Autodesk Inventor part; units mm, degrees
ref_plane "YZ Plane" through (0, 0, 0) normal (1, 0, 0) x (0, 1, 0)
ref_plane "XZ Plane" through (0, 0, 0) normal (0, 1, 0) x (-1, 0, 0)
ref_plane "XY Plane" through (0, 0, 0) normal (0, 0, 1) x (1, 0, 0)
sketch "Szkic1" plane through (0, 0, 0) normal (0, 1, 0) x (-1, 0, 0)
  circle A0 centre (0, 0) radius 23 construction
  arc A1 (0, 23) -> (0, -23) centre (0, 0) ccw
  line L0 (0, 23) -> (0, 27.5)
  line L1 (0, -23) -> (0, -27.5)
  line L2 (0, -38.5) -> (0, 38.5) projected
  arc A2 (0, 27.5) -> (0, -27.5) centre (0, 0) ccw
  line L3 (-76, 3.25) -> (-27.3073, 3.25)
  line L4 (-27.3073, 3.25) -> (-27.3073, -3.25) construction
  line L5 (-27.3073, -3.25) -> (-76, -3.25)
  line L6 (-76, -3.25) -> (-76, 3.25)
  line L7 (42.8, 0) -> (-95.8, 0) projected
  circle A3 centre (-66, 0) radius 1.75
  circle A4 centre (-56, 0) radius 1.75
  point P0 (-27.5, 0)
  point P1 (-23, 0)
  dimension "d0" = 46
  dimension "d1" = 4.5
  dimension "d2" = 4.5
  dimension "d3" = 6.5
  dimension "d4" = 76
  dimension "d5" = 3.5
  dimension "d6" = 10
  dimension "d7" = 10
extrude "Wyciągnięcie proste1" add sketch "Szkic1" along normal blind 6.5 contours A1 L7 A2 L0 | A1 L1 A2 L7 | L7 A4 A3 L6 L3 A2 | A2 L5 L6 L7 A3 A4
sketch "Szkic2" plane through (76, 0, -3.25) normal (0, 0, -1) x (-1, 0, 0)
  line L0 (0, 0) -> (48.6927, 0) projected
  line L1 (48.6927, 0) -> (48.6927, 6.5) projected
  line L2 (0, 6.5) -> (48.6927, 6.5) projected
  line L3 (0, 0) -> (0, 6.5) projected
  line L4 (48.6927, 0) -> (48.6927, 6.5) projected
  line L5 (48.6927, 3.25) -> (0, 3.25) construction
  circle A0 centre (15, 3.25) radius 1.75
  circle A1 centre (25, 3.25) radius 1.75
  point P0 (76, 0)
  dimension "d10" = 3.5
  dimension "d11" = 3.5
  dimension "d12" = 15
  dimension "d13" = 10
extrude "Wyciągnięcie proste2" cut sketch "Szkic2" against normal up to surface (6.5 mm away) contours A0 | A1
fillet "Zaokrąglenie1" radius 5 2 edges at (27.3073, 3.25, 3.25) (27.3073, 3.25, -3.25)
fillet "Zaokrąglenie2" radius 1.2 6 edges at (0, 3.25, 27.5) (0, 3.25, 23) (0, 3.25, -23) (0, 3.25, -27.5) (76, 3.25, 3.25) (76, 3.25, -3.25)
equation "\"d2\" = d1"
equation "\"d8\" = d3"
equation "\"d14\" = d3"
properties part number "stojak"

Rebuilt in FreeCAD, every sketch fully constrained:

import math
import FreeCAD as App
import Part
import Sketcher


def edges_at(feature, points):
    """Names of the edges that pass closest to the given points."""
    edges = feature.Shape.Edges
    near = lambda p: min(range(len(edges)), key=lambda i: edges[i].distToShape(Part.Vertex(*p))[0])
    return sorted({f"Edge{near(p) + 1}" for p in points})

doc = App.newDocument("Part")
params = doc.addObject("Spreadsheet::Sheet", "Params")
for row, (alias, value) in enumerate([
    ("sketch1_radius", "23 mm"),
    ("sketch1_diameter", "3.5 mm"),
    ("sketch1_height", "4.5 mm"),
    ("sketch1_height2", "6.5 mm"),
    ("pad1_length", "6.5 mm"),
    ("sketch2_diameter", "3.5 mm"),
    ("pocket1_length", "6.5 mm"),
    ("fillet_radius", "5 mm"),
    ("fillet2_radius", "1.2 mm"),
], start=1):
    params.set(f"A{row}", alias)
    params.set(f"B{row}", "=" + value)
    params.setAlias(f"B{row}", alias)

body = doc.addObject("PartDesign::Body", "Body")

# Sketch on XZ plane
sketch1 = doc.addObject("Sketcher::SketchObject", "Sketch")
body.addObject(sketch1)
sketch1.AttachmentSupport = (doc.XZ_Plane, [""])
sketch1.MapMode = "FlatFace"
sketch1.addGeometry([
    Part.LineSegment(App.Vector(0, 23, 0), App.Vector(0, 27.5, 0)),  # 0
    Part.ArcOfCircle(Part.Circle(App.Vector(0, 0, 0), App.Vector(0, 0, 1), 27.5), math.radians(6.787177), math.radians(90)),  # 1
    Part.LineSegment(App.Vector(27.3073, 3.25, 0), App.Vector(76, 3.25, 0)),  # 2
    Part.LineSegment(App.Vector(76, 3.25, 0), App.Vector(76, -3.25, 0)),  # 3
    Part.LineSegment(App.Vector(76, -3.25, 0), App.Vector(27.3073, -3.25, 0)),  # 4
    Part.ArcOfCircle(Part.Circle(App.Vector(0, 0, 0), App.Vector(0, 0, 1), 27.5), math.radians(-90), math.radians(-6.787177)),  # 5
    Part.LineSegment(App.Vector(0, -27.5, 0), App.Vector(0, -23, 0)),  # 6
    Part.ArcOfCircle(Part.Circle(App.Vector(0, 0, 0), App.Vector(0, 0, 1), 23), math.radians(-90), math.radians(90)),  # 7
    Part.Circle(App.Vector(56, 0, 0), App.Vector(0, 0, 1), 1.75),  # 8
    Part.Circle(App.Vector(66, 0, 0), App.Vector(0, 0, 1), 1.75),  # 9
], False)
sketch1.addConstraint([
    Sketcher.Constraint("Coincident", 0, 2, 1, 2),
    Sketcher.Constraint("Coincident", 1, 1, 2, 1),
    Sketcher.Constraint("Coincident", 2, 2, 3, 1),
    Sketcher.Constraint("Coincident", 3, 2, 4, 1),
    Sketcher.Constraint("Coincident", 4, 2, 5, 2),
    Sketcher.Constraint("Coincident", 5, 1, 6, 1),
    Sketcher.Constraint("Coincident", 6, 2, 7, 1),
    Sketcher.Constraint("Coincident", 7, 2, 0, 1),
    Sketcher.Constraint("Vertical", 0),
    Sketcher.Constraint("Horizontal", 2),
    Sketcher.Constraint("Vertical", 3),
    Sketcher.Constraint("Horizontal", 4),
    Sketcher.Constraint("Vertical", 6),
    Sketcher.Constraint("Coincident", 1, 3, -1, 1),
    Sketcher.Constraint("Coincident", 5, 3, -1, 1),
    Sketcher.Constraint("Coincident", 7, 3, -1, 1),
    Sketcher.Constraint("Equal", 1, 5),
    Sketcher.Constraint("Equal", 8, 9),
    Sketcher.Constraint("PointOnObject", 8, 3, -1),
    Sketcher.Constraint("PointOnObject", 9, 3, -1),
    Sketcher.Constraint("PointOnObject", 0, 2, -2),
    Sketcher.Constraint("PointOnObject", 5, 1, -2),
    Sketcher.Constraint("Vertical", 1, 1, 4, 2),
    Sketcher.Constraint("Radius", 7, 23.0),
    Sketcher.Constraint("Diameter", 8, 3.5),
    Sketcher.Constraint("DistanceY", 0, 1, 0, 2, 4.5),
    Sketcher.Constraint("DistanceY", 3, 2, 3, 1, 6.5),
    Sketcher.Constraint("DistanceX", -1, 1, 2, 2, 76.0),
    Sketcher.Constraint("DistanceX", 8, 3, 9, 3, 10.0),
    Sketcher.Constraint("DistanceX", 9, 3, 2, 2, 10.0),
])
sketch1.setExpression("Constraints[23]", "Params.sketch1_radius")
sketch1.setExpression("Constraints[24]", "Params.sketch1_diameter")
sketch1.setExpression("Constraints[25]", "Params.sketch1_height")
sketch1.setExpression("Constraints[26]", "Params.sketch1_height2")
pad1 = doc.addObject("PartDesign::Pad", "Pad")
body.addObject(pad1)
pad1.Profile = sketch1
pad1.setExpression("Length", "Params.pad1_length")
pad1.Reversed = True

# Sketch on XY plane
sketch2 = doc.addObject("Sketcher::SketchObject", "Sketch001")
body.addObject(sketch2)
sketch2.AttachmentSupport = (doc.XY_Plane, [""])
sketch2.MapMode = "FlatFace"
sketch2.AttachmentOffset = App.Placement(App.Vector(0, 0, -3.25), App.Rotation())
sketch2.addGeometry([
    Part.Circle(App.Vector(61, 3.25, 0), App.Vector(0, 0, 1), 1.75),
    Part.Circle(App.Vector(51, 3.25, 0), App.Vector(0, 0, 1), 1.75),
], False)
sketch2.addConstraint([
    Sketcher.Constraint("Equal", 0, 1),
    Sketcher.Constraint("Horizontal", 0, 3, 1, 3),
    Sketcher.Constraint("Diameter", 0, 3.5),
    Sketcher.Constraint("DistanceX", 1, 3, 0, 3, 10.0),
    Sketcher.Constraint("DistanceX", -1, 1, 0, 3, 61.0),
    Sketcher.Constraint("DistanceY", -1, 1, 0, 3, 3.25),
])
sketch2.setExpression("Constraints[2]", "Params.sketch2_diameter")
pocket1 = doc.addObject("PartDesign::Pocket", "Pocket")
body.addObject(pocket1)
pocket1.Profile = sketch2
pocket1.setExpression("Length", "Params.pocket1_length")
pocket1.Reversed = True
doc.recompute()

fillet = doc.addObject("PartDesign::Fillet", "Fillet")
body.addObject(fillet)
fillet.Base = (pocket1, edges_at(pocket1, [(27.307, 3.25, 3.25), (27.307, 3.25, -3.25)]))
fillet.setExpression("Radius", "Params.fillet_radius")
doc.recompute()

fillet2 = doc.addObject("PartDesign::Fillet", "Fillet001")
body.addObject(fillet2)
fillet2.Base = (fillet, edges_at(fillet, [
    (0, 3.25, 27.5),
    (0, 3.25, 23),
    (0, 3.25, -23),
    (0, 3.25, -27.5),
    (76, 3.25, 3.25),
    (76, 3.25, -3.25),
]))
fillet2.setExpression("Radius", "Params.fillet2_radius")

doc.recompute()
